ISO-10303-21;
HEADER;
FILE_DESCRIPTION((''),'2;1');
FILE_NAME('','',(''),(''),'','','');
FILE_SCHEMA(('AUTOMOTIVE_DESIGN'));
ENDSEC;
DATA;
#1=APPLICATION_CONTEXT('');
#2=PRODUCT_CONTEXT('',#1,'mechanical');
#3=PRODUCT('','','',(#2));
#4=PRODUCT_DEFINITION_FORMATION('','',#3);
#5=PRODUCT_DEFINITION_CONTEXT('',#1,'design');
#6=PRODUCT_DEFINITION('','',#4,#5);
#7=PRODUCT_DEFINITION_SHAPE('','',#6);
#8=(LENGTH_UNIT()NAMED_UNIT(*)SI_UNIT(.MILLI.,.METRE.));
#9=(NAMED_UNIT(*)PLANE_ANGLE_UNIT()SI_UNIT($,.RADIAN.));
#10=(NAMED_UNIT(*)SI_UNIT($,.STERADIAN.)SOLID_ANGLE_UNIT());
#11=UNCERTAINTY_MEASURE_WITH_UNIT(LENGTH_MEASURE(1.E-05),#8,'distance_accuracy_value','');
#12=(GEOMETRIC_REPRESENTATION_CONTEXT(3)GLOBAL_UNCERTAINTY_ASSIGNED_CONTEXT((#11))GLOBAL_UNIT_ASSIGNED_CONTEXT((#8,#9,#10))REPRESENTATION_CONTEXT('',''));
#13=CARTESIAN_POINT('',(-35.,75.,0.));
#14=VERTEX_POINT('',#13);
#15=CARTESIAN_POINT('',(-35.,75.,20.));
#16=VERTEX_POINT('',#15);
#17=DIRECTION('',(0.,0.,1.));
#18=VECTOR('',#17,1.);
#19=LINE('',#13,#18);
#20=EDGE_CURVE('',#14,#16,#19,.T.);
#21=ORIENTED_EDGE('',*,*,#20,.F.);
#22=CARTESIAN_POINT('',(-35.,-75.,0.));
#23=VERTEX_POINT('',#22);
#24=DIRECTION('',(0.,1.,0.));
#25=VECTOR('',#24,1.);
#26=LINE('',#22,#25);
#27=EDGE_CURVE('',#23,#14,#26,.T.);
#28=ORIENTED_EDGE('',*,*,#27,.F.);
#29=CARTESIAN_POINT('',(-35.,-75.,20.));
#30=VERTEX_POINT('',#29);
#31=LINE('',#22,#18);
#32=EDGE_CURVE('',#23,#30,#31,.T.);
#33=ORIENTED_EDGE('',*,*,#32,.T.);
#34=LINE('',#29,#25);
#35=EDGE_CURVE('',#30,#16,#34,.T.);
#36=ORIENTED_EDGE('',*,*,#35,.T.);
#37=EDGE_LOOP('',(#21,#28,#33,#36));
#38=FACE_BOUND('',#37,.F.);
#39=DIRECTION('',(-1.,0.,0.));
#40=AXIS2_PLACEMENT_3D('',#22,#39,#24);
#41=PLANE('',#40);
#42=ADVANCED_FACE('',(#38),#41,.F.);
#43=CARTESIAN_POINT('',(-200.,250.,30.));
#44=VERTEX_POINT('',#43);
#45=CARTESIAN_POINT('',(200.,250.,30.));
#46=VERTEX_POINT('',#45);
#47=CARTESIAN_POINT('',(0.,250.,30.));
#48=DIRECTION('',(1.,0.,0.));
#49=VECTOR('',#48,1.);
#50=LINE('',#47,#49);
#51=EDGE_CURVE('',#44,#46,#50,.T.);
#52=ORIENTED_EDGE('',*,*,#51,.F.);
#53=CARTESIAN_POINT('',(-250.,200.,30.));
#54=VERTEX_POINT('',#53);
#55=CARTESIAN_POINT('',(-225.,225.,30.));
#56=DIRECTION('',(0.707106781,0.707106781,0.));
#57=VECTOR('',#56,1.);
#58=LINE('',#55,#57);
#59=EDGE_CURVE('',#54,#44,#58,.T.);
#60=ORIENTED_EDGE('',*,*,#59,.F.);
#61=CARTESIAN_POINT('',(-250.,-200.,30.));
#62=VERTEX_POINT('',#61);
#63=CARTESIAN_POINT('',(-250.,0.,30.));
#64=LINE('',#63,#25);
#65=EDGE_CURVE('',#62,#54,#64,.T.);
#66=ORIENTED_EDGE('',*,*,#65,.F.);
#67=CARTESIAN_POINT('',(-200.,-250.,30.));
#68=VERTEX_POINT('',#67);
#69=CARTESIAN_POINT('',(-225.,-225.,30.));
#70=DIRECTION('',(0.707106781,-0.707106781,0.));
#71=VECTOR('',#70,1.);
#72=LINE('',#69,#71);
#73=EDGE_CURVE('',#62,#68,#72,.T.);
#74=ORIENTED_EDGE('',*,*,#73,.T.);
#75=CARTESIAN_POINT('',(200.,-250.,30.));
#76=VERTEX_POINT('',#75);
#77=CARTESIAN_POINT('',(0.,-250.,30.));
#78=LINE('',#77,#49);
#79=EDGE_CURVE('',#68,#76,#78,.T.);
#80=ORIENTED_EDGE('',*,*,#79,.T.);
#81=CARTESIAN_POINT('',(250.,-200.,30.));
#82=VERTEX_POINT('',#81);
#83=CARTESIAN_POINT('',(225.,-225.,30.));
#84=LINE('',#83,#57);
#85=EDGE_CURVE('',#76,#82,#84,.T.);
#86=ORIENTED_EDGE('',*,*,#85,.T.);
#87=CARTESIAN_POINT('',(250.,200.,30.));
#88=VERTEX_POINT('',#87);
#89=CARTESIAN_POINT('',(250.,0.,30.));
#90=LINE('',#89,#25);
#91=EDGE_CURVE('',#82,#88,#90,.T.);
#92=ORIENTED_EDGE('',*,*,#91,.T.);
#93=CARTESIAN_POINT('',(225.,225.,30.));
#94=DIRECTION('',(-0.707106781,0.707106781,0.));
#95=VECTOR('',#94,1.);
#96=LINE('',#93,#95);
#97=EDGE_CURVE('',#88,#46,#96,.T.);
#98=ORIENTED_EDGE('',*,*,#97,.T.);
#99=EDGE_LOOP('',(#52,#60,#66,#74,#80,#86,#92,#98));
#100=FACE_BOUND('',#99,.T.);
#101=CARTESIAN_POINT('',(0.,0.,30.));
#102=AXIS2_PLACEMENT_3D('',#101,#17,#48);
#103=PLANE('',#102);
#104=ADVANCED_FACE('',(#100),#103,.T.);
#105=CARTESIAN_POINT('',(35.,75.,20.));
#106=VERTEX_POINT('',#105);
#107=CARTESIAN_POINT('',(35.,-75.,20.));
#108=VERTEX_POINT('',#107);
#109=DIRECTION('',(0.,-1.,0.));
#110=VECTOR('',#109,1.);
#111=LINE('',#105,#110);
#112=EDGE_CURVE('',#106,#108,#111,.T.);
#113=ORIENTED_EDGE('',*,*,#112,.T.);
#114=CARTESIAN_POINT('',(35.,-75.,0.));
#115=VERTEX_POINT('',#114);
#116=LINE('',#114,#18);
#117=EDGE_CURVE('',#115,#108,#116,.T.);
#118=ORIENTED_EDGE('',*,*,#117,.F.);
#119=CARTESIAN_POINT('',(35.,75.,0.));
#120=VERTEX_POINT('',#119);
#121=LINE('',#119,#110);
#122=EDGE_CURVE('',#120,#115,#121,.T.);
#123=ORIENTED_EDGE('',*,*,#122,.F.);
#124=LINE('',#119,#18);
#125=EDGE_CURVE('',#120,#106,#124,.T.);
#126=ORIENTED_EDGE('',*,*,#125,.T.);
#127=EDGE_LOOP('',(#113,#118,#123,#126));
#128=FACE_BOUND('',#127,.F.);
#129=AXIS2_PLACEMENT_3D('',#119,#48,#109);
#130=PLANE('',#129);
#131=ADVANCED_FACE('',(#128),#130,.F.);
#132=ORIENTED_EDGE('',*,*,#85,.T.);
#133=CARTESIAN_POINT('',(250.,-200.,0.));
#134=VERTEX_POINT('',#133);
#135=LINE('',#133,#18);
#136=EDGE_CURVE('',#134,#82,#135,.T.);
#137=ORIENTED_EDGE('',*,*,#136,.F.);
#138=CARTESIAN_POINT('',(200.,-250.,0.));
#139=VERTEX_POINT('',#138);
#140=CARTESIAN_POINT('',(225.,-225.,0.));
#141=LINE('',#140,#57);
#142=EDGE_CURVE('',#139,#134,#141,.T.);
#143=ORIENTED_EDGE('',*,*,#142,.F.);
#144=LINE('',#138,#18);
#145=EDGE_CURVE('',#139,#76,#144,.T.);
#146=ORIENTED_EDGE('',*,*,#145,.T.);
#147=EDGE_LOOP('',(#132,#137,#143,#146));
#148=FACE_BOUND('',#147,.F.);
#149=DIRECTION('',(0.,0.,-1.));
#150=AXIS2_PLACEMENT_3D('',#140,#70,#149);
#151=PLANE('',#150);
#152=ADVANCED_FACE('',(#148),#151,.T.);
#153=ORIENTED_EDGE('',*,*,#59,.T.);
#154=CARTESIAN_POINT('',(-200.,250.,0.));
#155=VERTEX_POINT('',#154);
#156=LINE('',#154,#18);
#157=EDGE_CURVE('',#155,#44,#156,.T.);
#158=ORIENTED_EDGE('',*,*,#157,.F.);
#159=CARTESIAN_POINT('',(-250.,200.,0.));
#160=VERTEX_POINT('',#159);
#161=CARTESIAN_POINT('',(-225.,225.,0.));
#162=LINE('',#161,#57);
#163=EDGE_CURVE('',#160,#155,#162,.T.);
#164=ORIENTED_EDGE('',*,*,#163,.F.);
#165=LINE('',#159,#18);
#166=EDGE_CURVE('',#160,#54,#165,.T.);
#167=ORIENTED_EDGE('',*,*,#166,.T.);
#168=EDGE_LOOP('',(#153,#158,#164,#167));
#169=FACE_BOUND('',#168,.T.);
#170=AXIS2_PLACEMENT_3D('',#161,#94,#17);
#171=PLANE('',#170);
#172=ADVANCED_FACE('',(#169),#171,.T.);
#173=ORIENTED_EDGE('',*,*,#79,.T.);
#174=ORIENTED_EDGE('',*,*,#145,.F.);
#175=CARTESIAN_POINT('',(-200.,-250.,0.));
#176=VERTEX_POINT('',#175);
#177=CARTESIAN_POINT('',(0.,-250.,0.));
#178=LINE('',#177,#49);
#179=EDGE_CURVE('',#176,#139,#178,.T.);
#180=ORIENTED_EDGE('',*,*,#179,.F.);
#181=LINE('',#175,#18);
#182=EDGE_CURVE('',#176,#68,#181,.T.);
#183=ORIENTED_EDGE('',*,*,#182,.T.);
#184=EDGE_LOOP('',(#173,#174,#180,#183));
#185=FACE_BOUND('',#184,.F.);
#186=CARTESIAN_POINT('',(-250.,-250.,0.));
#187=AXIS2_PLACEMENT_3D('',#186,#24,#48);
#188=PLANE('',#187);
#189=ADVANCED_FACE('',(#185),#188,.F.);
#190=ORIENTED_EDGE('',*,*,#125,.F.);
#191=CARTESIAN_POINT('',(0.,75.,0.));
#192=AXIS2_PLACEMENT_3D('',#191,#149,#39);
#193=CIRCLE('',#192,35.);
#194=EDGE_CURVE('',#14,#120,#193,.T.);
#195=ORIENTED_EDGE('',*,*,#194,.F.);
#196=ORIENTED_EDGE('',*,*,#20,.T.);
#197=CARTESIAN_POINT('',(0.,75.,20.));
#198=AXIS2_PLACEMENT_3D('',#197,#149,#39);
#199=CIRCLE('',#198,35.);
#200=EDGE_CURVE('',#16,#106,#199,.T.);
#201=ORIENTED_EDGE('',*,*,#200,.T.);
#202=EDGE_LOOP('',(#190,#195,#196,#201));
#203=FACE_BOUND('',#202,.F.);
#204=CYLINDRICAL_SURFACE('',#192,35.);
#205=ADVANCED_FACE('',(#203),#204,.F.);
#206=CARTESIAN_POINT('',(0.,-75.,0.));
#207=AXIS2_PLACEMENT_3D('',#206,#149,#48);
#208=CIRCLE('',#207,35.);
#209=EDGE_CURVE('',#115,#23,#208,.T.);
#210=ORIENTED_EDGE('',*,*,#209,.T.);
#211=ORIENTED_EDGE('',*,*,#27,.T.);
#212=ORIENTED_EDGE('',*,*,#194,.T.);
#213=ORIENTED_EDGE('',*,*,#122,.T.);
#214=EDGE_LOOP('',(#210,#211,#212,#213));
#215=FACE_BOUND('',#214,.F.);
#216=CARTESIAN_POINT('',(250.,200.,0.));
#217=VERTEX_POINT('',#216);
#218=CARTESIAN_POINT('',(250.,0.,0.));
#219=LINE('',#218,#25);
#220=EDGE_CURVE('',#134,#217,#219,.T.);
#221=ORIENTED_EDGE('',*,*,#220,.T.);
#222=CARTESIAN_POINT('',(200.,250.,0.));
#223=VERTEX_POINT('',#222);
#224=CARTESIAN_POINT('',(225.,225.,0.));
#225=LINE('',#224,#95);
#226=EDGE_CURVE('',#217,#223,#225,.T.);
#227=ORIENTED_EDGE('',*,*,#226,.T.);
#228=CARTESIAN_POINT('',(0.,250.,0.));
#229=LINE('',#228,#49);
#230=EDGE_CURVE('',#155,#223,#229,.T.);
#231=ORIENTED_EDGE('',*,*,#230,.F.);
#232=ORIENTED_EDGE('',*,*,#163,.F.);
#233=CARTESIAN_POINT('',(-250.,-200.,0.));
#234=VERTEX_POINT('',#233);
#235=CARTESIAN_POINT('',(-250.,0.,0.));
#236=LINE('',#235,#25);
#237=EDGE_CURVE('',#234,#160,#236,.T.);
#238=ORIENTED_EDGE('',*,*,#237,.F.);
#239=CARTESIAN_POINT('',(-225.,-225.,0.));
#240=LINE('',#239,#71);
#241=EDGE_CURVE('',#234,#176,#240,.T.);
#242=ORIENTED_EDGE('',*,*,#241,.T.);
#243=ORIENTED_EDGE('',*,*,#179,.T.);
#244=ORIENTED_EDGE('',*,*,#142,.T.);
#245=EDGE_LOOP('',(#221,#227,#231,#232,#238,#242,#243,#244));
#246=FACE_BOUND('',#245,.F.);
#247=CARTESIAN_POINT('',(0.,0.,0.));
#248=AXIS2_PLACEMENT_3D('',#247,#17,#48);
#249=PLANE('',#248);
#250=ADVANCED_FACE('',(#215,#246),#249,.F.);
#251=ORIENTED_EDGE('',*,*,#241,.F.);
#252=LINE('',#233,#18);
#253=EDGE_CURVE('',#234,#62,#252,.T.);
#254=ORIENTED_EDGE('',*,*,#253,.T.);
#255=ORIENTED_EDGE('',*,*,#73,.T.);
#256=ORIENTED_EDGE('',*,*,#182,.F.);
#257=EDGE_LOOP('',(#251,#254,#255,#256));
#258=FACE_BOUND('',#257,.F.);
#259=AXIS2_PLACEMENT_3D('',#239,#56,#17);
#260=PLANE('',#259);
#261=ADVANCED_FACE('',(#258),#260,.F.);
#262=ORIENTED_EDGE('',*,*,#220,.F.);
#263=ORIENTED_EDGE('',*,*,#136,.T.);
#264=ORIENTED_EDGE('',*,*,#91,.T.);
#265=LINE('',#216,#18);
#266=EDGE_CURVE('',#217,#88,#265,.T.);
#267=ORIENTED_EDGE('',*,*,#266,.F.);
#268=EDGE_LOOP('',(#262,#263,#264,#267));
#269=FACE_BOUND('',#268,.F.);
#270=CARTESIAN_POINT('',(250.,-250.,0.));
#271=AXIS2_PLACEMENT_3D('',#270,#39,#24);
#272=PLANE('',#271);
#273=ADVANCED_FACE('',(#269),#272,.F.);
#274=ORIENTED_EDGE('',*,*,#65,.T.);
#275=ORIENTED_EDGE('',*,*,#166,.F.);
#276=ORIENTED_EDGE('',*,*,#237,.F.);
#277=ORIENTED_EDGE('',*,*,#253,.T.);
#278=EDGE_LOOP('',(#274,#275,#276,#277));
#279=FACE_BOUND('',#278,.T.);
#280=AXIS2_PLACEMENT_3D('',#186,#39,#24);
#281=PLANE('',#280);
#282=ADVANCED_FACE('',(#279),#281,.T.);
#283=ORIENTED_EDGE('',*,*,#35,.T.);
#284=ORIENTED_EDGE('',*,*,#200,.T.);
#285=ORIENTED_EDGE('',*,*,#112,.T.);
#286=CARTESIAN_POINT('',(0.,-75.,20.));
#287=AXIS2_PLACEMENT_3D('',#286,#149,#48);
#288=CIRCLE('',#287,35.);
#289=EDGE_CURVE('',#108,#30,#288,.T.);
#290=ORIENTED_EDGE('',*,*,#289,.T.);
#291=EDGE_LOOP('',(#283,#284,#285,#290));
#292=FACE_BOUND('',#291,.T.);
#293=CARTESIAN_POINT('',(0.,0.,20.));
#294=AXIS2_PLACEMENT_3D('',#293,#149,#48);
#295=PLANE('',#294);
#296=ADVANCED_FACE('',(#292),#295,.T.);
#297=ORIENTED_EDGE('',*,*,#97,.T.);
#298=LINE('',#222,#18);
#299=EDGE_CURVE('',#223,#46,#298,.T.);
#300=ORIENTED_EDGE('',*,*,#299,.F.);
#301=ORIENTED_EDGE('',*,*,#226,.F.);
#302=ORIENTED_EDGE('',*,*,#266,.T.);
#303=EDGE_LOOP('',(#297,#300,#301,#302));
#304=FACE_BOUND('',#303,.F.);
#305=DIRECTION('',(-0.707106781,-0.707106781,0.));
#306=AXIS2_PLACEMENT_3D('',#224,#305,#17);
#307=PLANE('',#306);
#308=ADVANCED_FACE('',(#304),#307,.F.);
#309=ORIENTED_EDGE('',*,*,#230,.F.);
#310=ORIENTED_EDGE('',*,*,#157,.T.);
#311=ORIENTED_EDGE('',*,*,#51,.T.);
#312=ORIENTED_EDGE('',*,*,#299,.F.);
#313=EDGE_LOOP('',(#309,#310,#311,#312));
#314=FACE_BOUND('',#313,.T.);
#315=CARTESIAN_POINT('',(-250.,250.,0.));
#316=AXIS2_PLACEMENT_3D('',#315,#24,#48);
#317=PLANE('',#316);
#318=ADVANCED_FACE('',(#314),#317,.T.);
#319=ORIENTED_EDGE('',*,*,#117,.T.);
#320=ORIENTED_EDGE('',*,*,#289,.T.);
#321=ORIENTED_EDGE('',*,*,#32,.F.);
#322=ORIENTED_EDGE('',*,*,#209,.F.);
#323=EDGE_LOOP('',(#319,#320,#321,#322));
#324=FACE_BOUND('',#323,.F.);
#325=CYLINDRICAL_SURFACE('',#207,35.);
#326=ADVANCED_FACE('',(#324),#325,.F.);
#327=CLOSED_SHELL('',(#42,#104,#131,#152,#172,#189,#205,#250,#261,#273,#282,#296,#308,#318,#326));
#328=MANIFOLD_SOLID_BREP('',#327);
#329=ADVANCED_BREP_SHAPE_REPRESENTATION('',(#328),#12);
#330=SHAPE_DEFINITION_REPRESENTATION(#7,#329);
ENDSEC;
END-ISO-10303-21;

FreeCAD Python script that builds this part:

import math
import FreeCAD as App
import Part
import Sketcher
Q = App.Units.Quantity


def edges_at(feature, points):
    """Names of the edges that pass closest to the given points."""
    edges = feature.Shape.Edges
    near = lambda p: min(range(len(edges)), key=lambda i: edges[i].distToShape(Part.Vertex(*p))[0])
    return sorted({f"Edge{near(p) + 1}" for p in points})


def add_polygon(sketch, points):
    """Adds a closed chain of lines whose ends are joined by coincident constraints."""
    first, n = sketch.GeometryCount, len(points)
    for a, b in zip(points, points[1:] + points[:1]):
        sketch.addGeometry(Part.LineSegment(App.Vector(*a, 0), App.Vector(*b, 0)), False)
    for i in range(n):
        sketch.addConstraint(Sketcher.Constraint("Coincident", first + i, 2, first + (i + 1) % n, 1))

doc = App.newDocument("Part")
body = doc.addObject("PartDesign::Body", "Body")

# Sketch on XY plane
sketch1 = body.newObject("Sketcher::SketchObject", "Sketch")
sketch1.AttachmentSupport = (doc.getObject("XY_Plane"), [""])
sketch1.MapMode = "FlatFace"
add_polygon(sketch1, [(-250, 250), (-250, -250), (250, -250), (250, 250)])  # lines 0-3
sketch1.addConstraint(Sketcher.Constraint("Vertical", 0))
sketch1.addConstraint(Sketcher.Constraint("Horizontal", 1))
sketch1.addConstraint(Sketcher.Constraint("Vertical", 2))
sketch1.addConstraint(Sketcher.Constraint("Horizontal", 3))
sketch1.addConstraint(Sketcher.Constraint("Symmetric", 0, 2, 2, 2, -1, 1))
sketch1.addConstraint(Sketcher.Constraint("Equal", 3, 0))
sketch1.addConstraint(Sketcher.Constraint("DistanceX", 1, 1, 1, 2, Q("500 mm")))
pad1 = body.newObject("PartDesign::Pad", "Pad")
pad1.Profile = sketch1
pad1.Length = 30
doc.recompute()

chamfer = body.newObject("PartDesign::Chamfer", "Chamfer")
chamfer.Base = (pad1, edges_at(pad1, [
    (250, -250, 15),
    (250, 250, 15),
    (-250, -250, 15),
    (-250, 250, 15),
]))
chamfer.Size = 50

# Sketch on XY plane
sketch2 = body.newObject("Sketcher::SketchObject", "Sketch001")
sketch2.AttachmentSupport = (doc.getObject("XY_Plane"), [""])
sketch2.MapMode = "FlatFace"
sketch2.addGeometry(Part.ArcOfCircle(Part.Circle(App.Vector(0, 75, 0), App.Vector(0, 0, 1), 35), math.radians(0), math.radians(180)), False)
sketch2.addGeometry(Part.LineSegment(App.Vector(35, 75, 0), App.Vector(35, -75, 0)), False)
sketch2.addGeometry(Part.ArcOfCircle(Part.Circle(App.Vector(0, -75, 0), App.Vector(0, 0, 1), 35), math.radians(180), math.radians(360)), False)
sketch2.addGeometry(Part.LineSegment(App.Vector(-35, -75, 0), App.Vector(-35, 75, 0)), False)
sketch2.addConstraint(Sketcher.Constraint("Tangent", 0, 1, 1, 1))
sketch2.addConstraint(Sketcher.Constraint("Tangent", 1, 2, 2, 2))
sketch2.addConstraint(Sketcher.Constraint("Tangent", 2, 1, 3, 1))
sketch2.addConstraint(Sketcher.Constraint("Tangent", 3, 2, 0, 2))
sketch2.addConstraint(Sketcher.Constraint("Vertical", 1))
sketch2.addConstraint(Sketcher.Constraint("Vertical", 3))
sketch2.addConstraint(Sketcher.Constraint("Symmetric", 0, 3, 2, 3, -1, 1))
sketch2.addConstraint(Sketcher.Constraint("Radius", 0, Q("35 mm")))
sketch2.addConstraint(Sketcher.Constraint("DistanceY", 1, 2, 1, 1, Q("150 mm")))
pocket1 = body.newObject("PartDesign::Pocket", "Pocket")
pocket1.Profile = sketch2
pocket1.Length = 20
pocket1.Reversed = True

doc.recompute()
